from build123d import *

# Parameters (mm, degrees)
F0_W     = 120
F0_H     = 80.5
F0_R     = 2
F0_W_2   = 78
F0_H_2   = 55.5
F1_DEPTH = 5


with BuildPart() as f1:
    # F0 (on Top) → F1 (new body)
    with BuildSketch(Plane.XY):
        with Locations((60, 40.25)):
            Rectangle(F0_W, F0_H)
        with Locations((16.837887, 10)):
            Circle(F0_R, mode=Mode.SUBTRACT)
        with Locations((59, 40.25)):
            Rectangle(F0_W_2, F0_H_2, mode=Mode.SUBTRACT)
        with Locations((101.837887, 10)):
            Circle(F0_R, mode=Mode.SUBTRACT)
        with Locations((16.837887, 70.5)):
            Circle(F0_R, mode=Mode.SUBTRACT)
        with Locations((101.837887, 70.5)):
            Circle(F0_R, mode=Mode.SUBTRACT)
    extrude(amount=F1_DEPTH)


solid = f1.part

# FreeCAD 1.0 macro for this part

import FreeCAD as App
import Part
import Sketcher

doc = App.newDocument("Part")
body = doc.addObject("PartDesign::Body", "Body")

sketch1 = doc.addObject("Sketcher::SketchObject", "Sketch")
body.addObject(sketch1)
sketch1.AttachmentSupport = (doc.XY_Plane, [""])
sketch1.MapMode = "FlatFace"
sketch1.addGeometry([
    Part.LineSegment(App.Vector(0, 80.5, 0), App.Vector(0, 0, 0)),
    Part.LineSegment(App.Vector(0, 0, 0), App.Vector(120, 0, 0)),
    Part.LineSegment(App.Vector(120, 0, 0), App.Vector(120, 80.5, 0)),
    Part.LineSegment(App.Vector(120, 80.5, 0), App.Vector(0, 80.5, 0)),
    Part.Circle(App.Vector(16.8, 10, 0), App.Vector(0, 0, 1), 2),
    Part.Circle(App.Vector(101.8, 10, 0), App.Vector(0, 0, 1), 2),
    Part.LineSegment(App.Vector(98, 12.5, 0), App.Vector(20, 12.5, 0)),
    Part.LineSegment(App.Vector(20, 12.5, 0), App.Vector(20, 68, 0)),
    Part.LineSegment(App.Vector(20, 68, 0), App.Vector(98, 68, 0)),
    Part.LineSegment(App.Vector(98, 68, 0), App.Vector(98, 12.5, 0)),
    Part.Circle(App.Vector(16.8, 70.5, 0), App.Vector(0, 0, 1), 2),
    Part.Circle(App.Vector(101.8, 70.5, 0), App.Vector(0, 0, 1), 2),
], False)
sketch1.addConstraint([
    Sketcher.Constraint("Coincident", 0, 2, 1, 1),
    Sketcher.Constraint("Coincident", 1, 2, 2, 1),
    Sketcher.Constraint("Coincident", 2, 2, 3, 1),
    Sketcher.Constraint("Coincident", 3, 2, 0, 1),
    Sketcher.Constraint("Coincident", 6, 2, 7, 1),
    Sketcher.Constraint("Coincident", 7, 2, 8, 1),
    Sketcher.Constraint("Coincident", 8, 2, 9, 1),
    Sketcher.Constraint("Coincident", 9, 2, 6, 1),
    Sketcher.Constraint("Vertical", 0),
    Sketcher.Constraint("Horizontal", 1),
    Sketcher.Constraint("Vertical", 2),
    Sketcher.Constraint("Horizontal", 3),
    Sketcher.Constraint("Horizontal", 6),
    Sketcher.Constraint("Vertical", 7),
    Sketcher.Constraint("Horizontal", 8),
    Sketcher.Constraint("Vertical", 9),
    Sketcher.Constraint("Coincident", 0, 2, -1, 1),
    Sketcher.Constraint("Equal", 4, 5),
    Sketcher.Constraint("Equal", 5, 10),
    Sketcher.Constraint("Equal", 10, 11),
    Sketcher.Constraint("Horizontal", 4, 3, 5, 3),
    Sketcher.Constraint("Horizontal", 10, 3, 11, 3),
    Sketcher.Constraint("Vertical", 4, 3, 10, 3),
    Sketcher.Constraint("Vertical", 5, 3, 11, 3),
    Sketcher.Constraint("Diameter", 4, 4.0),
    Sketcher.Constraint("DistanceX", 1, 1, 1, 2, 120.0),
    Sketcher.Constraint("DistanceX", 6, 2, 6, 1, 78.0),
    Sketcher.Constraint("DistanceY", 0, 2, 0, 1, 80.5),
    Sketcher.Constraint("DistanceY", 7, 1, 7, 2, 55.5),
    Sketcher.Constraint("DistanceY", -1, 1, 4, 3, 10.0),
    Sketcher.Constraint("DistanceX", -1, 1, 6, 2, 20.0),
    Sketcher.Constraint("DistanceY", -1, 1, 7, 2, 68.0),
    Sketcher.Constraint("DistanceX", 4, 3, 5, 3, 85.0),
    Sketcher.Constraint("DistanceY", 11, 3, 2, 2, 10.0),
    Sketcher.Constraint("DistanceX", -1, 1, 4, 3, 16.837887),
])
pad1 = doc.addObject("PartDesign::Pad", "Pad")
body.addObject(pad1)
pad1.Profile = sketch1
pad1.Length = 5

doc.recompute()
